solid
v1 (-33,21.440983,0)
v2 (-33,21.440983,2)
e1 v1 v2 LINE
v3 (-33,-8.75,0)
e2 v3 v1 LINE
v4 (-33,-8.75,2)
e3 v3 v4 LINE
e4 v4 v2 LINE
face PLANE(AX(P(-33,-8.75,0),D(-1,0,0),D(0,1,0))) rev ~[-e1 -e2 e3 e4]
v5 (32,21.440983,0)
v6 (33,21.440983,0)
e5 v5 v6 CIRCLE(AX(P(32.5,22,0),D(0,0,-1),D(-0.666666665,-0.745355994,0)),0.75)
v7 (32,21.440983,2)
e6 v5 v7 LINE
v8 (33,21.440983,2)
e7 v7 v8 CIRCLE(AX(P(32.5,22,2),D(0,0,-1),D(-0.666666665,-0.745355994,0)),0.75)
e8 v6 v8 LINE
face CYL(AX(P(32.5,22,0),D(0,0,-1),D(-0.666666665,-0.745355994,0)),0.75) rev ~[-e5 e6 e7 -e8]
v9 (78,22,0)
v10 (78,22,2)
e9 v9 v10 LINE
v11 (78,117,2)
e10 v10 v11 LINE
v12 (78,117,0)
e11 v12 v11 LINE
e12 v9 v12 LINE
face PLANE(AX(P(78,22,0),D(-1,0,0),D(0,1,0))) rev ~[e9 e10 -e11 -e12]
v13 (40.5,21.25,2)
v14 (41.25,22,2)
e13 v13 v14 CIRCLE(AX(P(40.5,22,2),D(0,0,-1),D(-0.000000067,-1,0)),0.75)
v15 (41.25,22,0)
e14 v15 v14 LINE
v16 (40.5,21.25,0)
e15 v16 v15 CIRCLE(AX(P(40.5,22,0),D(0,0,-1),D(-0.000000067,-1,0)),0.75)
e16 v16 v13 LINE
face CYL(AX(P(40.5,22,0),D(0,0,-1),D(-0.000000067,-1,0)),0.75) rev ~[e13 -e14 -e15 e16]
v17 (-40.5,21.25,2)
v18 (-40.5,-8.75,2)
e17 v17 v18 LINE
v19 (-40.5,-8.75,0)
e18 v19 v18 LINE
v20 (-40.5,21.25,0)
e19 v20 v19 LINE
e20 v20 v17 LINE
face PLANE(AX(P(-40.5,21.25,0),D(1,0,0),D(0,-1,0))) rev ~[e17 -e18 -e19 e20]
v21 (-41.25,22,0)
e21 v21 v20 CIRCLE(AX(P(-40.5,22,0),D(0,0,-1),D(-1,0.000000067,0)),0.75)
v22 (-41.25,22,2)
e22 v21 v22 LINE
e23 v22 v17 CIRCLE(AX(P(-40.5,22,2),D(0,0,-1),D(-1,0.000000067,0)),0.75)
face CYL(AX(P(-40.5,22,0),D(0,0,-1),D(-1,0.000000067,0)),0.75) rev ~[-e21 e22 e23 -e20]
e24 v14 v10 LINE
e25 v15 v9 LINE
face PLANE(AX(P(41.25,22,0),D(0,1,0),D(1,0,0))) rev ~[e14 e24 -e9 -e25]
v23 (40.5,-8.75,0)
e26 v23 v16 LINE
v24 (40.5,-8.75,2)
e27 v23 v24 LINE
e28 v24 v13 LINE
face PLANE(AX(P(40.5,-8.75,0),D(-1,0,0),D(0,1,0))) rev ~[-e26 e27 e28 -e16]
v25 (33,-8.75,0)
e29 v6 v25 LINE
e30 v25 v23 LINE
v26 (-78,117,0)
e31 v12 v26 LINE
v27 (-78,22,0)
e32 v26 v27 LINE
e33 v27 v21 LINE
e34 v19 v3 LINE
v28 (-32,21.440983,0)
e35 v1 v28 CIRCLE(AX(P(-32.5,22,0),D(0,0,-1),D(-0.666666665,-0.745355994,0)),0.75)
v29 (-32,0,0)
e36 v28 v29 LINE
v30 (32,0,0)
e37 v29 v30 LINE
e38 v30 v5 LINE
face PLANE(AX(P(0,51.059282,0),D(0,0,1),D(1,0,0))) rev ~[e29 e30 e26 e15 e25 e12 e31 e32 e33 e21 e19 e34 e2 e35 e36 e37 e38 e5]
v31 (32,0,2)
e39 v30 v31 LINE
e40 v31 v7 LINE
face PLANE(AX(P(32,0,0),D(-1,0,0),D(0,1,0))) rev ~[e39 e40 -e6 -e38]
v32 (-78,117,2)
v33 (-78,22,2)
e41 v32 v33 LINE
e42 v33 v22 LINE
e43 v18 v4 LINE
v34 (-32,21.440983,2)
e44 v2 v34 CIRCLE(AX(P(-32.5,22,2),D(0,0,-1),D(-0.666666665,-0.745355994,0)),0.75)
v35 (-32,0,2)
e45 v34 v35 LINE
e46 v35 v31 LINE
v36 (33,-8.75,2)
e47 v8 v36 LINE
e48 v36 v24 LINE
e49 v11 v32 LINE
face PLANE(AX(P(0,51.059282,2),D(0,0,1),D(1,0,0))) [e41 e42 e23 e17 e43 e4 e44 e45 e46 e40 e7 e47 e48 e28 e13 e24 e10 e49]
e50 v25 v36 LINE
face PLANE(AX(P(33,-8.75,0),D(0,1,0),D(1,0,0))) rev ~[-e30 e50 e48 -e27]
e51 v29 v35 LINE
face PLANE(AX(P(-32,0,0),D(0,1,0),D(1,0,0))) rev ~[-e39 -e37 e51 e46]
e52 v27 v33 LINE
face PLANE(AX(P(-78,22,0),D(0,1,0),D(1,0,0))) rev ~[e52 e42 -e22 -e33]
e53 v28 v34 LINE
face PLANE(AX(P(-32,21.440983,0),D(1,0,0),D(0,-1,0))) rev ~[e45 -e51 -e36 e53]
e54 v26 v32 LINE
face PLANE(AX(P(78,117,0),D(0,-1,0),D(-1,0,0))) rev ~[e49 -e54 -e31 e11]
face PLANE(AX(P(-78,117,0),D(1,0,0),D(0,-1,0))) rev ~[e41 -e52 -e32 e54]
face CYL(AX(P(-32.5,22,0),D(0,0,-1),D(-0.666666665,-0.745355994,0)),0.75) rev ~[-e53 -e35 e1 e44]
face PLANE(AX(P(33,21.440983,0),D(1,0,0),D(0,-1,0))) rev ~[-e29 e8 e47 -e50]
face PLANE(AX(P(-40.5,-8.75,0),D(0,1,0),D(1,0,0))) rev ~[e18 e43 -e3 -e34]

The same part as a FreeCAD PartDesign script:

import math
import FreeCAD as App
import Part
import Sketcher

V = App.Vector
Q = App.Units.Quantity

doc = App.newDocument("Part")
params = doc.addObject("Spreadsheet::Sheet", "Params")
for row, (alias, value) in enumerate([
    ("sketch1_width", "156 mm"),
    ("sketch1_width2", "64 mm"),
    ("sketch1_height", "95 mm"),
    ("sketch1_height2", "30 mm"),
    ("sketch1_radius", "0.75 mm"),
    ("pad1_length", "2 mm"),
], start=1):
    params.set(f"A{row}", alias)
    params.set(f"B{row}", "=" + value)
    params.setAlias(f"B{row}", alias)

body = doc.addObject("PartDesign::Body", "Body")

sketch1 = body.newObject("Sketcher::SketchObject", "Sketch")
sketch1.AttachmentSupport = (doc.getObject("XY_Plane"), [""])
sketch1.MapMode = "FlatFace"
sketch1.addGeometry([
    Part.LineSegment(V(78, 117, 0), V(-78, 117, 0)),
    Part.LineSegment(V(-78, 117, 0), V(-78, 22, 0)),
    Part.LineSegment(V(-78, 22, 0), V(-41.25, 22, 0)),
    Part.ArcOfCircle(Part.Circle(V(-40.5, 22, 0), V(0, 0, 1), 0.75), math.radians(-89.999996), math.radians(179.999996)),
    Part.LineSegment(V(-40.5, 21.25, 0), V(-40.5, -8.75, 0)),
    Part.LineSegment(V(-40.5, -8.75, 0), V(-33, -8.75, 0)),
    Part.LineSegment(V(-33, -8.75, 0), V(-33, 21.440983, 0)),
    Part.ArcOfCircle(Part.Circle(V(-32.5, 22, 0), V(0, 0, 1), 0.75), math.radians(-48.189685), math.radians(228.189685)),
    Part.LineSegment(V(-32, 21.440983, 0), V(-32, 0, 0)),
    Part.LineSegment(V(-32, 0, 0), V(32, 0, 0)),
    Part.LineSegment(V(32, 0, 0), V(32, 21.440983, 0)),
    Part.ArcOfCircle(Part.Circle(V(32.5, 22, 0), V(0, 0, 1), 0.75), math.radians(-48.189685), math.radians(228.189685)),
    Part.LineSegment(V(33, 21.440983, 0), V(33, -8.75, 0)),
    Part.LineSegment(V(33, -8.75, 0), V(40.5, -8.75, 0)),
    Part.LineSegment(V(40.5, -8.75, 0), V(40.5, 21.25, 0)),
    Part.ArcOfCircle(Part.Circle(V(40.5, 22, 0), V(0, 0, 1), 0.75), math.radians(0.000004), math.radians(269.999996)),
    Part.LineSegment(V(41.25, 22, 0), V(78, 22, 0)),
    Part.LineSegment(V(78, 22, 0), V(78, 117, 0)),
], False)
sketch1.addConstraint([
    Sketcher.Constraint("Coincident", 0, 2, 1, 1),
    Sketcher.Constraint("Coincident", 1, 2, 2, 1),
    Sketcher.Constraint("Coincident", 2, 2, 3, 2),
    Sketcher.Constraint("Coincident", 3, 1, 4, 1),
    Sketcher.Constraint("Coincident", 4, 2, 5, 1),
    Sketcher.Constraint("Coincident", 5, 2, 6, 1),
    Sketcher.Constraint("Coincident", 6, 2, 7, 2),
    Sketcher.Constraint("Coincident", 7, 1, 8, 1),
    Sketcher.Constraint("Coincident", 8, 2, 9, 1),
    Sketcher.Constraint("Coincident", 9, 2, 10, 1),
    Sketcher.Constraint("Coincident", 10, 2, 11, 2),
    Sketcher.Constraint("Coincident", 11, 1, 12, 1),
    Sketcher.Constraint("Coincident", 12, 2, 13, 1),
    Sketcher.Constraint("Coincident", 13, 2, 14, 1),
    Sketcher.Constraint("Coincident", 14, 2, 15, 2),
    Sketcher.Constraint("Coincident", 15, 1, 16, 1),
    Sketcher.Constraint("Coincident", 16, 2, 17, 1),
    Sketcher.Constraint("Coincident", 17, 2, 0, 1),
    Sketcher.Constraint("Horizontal", 0),
    Sketcher.Constraint("Vertical", 1),
    Sketcher.Constraint("Horizontal", 2),
    Sketcher.Constraint("Vertical", 4),
    Sketcher.Constraint("Horizontal", 5),
    Sketcher.Constraint("Vertical", 6),
    Sketcher.Constraint("Vertical", 8),
    Sketcher.Constraint("Horizontal", 9),
    Sketcher.Constraint("Vertical", 10),
    Sketcher.Constraint("Vertical", 12),
    Sketcher.Constraint("Horizontal", 13),
    Sketcher.Constraint("Vertical", 14),
    Sketcher.Constraint("Horizontal", 16),
    Sketcher.Constraint("Vertical", 17),
    Sketcher.Constraint("Equal", 3, 7),
    Sketcher.Constraint("Equal", 7, 11),
    Sketcher.Constraint("Equal", 11, 15),
    Sketcher.Constraint("Symmetric", 8, 2, 9, 2, -1, 1),
    Sketcher.Constraint("Symmetric", 7, 3, 11, 3, -2),
    Sketcher.Constraint("Symmetric", 3, 3, 15, 3, -2),
    Sketcher.Constraint("Symmetric", 5, 2, 12, 2, -2),
    Sketcher.Constraint("Symmetric", 1, 2, 16, 2, -2),
    Sketcher.Constraint("Horizontal", 3, 3, 7, 3),
    Sketcher.Constraint("Horizontal", 15, 3, 1, 2),
    Sketcher.Constraint("Horizontal", 6, 2, 7, 1),
    Sketcher.Constraint("Vertical", 15, 3, 13, 2),
    Sketcher.Constraint("Equal", 5, 13),
    Sketcher.Constraint("DistanceX", 0, 2, 0, 1, Q("156 mm")),
    Sketcher.Constraint("DistanceX", 9, 1, 9, 2, Q("64 mm")),
    Sketcher.Constraint("DistanceY", 1, 2, 1, 1, Q("95 mm")),
    Sketcher.Constraint("DistanceY", 4, 2, 4, 1, Q("30 mm")),
    Sketcher.Constraint("Radius", 3, Q("0.75 mm")),
    Sketcher.Constraint("DistanceX", 5, 1, 5, 2, Q("7.5 mm")),
    Sketcher.Constraint("DistanceY", -1, 1, 3, 3, Q("22 mm")),
    Sketcher.Constraint("DistanceX", 5, 2, -1, 1, Q("33 mm")),
])
sketch1.setExpression("Constraints[45]", "Params.sketch1_width")
sketch1.setExpression("Constraints[46]", "Params.sketch1_width2")
sketch1.setExpression("Constraints[47]", "Params.sketch1_height")
sketch1.setExpression("Constraints[48]", "Params.sketch1_height2")
sketch1.setExpression("Constraints[49]", "Params.sketch1_radius")
pad1 = body.newObject("PartDesign::Pad", "Pad")
pad1.Profile = sketch1
pad1.setExpression("Length", "Params.pad1_length")

doc.recompute()
